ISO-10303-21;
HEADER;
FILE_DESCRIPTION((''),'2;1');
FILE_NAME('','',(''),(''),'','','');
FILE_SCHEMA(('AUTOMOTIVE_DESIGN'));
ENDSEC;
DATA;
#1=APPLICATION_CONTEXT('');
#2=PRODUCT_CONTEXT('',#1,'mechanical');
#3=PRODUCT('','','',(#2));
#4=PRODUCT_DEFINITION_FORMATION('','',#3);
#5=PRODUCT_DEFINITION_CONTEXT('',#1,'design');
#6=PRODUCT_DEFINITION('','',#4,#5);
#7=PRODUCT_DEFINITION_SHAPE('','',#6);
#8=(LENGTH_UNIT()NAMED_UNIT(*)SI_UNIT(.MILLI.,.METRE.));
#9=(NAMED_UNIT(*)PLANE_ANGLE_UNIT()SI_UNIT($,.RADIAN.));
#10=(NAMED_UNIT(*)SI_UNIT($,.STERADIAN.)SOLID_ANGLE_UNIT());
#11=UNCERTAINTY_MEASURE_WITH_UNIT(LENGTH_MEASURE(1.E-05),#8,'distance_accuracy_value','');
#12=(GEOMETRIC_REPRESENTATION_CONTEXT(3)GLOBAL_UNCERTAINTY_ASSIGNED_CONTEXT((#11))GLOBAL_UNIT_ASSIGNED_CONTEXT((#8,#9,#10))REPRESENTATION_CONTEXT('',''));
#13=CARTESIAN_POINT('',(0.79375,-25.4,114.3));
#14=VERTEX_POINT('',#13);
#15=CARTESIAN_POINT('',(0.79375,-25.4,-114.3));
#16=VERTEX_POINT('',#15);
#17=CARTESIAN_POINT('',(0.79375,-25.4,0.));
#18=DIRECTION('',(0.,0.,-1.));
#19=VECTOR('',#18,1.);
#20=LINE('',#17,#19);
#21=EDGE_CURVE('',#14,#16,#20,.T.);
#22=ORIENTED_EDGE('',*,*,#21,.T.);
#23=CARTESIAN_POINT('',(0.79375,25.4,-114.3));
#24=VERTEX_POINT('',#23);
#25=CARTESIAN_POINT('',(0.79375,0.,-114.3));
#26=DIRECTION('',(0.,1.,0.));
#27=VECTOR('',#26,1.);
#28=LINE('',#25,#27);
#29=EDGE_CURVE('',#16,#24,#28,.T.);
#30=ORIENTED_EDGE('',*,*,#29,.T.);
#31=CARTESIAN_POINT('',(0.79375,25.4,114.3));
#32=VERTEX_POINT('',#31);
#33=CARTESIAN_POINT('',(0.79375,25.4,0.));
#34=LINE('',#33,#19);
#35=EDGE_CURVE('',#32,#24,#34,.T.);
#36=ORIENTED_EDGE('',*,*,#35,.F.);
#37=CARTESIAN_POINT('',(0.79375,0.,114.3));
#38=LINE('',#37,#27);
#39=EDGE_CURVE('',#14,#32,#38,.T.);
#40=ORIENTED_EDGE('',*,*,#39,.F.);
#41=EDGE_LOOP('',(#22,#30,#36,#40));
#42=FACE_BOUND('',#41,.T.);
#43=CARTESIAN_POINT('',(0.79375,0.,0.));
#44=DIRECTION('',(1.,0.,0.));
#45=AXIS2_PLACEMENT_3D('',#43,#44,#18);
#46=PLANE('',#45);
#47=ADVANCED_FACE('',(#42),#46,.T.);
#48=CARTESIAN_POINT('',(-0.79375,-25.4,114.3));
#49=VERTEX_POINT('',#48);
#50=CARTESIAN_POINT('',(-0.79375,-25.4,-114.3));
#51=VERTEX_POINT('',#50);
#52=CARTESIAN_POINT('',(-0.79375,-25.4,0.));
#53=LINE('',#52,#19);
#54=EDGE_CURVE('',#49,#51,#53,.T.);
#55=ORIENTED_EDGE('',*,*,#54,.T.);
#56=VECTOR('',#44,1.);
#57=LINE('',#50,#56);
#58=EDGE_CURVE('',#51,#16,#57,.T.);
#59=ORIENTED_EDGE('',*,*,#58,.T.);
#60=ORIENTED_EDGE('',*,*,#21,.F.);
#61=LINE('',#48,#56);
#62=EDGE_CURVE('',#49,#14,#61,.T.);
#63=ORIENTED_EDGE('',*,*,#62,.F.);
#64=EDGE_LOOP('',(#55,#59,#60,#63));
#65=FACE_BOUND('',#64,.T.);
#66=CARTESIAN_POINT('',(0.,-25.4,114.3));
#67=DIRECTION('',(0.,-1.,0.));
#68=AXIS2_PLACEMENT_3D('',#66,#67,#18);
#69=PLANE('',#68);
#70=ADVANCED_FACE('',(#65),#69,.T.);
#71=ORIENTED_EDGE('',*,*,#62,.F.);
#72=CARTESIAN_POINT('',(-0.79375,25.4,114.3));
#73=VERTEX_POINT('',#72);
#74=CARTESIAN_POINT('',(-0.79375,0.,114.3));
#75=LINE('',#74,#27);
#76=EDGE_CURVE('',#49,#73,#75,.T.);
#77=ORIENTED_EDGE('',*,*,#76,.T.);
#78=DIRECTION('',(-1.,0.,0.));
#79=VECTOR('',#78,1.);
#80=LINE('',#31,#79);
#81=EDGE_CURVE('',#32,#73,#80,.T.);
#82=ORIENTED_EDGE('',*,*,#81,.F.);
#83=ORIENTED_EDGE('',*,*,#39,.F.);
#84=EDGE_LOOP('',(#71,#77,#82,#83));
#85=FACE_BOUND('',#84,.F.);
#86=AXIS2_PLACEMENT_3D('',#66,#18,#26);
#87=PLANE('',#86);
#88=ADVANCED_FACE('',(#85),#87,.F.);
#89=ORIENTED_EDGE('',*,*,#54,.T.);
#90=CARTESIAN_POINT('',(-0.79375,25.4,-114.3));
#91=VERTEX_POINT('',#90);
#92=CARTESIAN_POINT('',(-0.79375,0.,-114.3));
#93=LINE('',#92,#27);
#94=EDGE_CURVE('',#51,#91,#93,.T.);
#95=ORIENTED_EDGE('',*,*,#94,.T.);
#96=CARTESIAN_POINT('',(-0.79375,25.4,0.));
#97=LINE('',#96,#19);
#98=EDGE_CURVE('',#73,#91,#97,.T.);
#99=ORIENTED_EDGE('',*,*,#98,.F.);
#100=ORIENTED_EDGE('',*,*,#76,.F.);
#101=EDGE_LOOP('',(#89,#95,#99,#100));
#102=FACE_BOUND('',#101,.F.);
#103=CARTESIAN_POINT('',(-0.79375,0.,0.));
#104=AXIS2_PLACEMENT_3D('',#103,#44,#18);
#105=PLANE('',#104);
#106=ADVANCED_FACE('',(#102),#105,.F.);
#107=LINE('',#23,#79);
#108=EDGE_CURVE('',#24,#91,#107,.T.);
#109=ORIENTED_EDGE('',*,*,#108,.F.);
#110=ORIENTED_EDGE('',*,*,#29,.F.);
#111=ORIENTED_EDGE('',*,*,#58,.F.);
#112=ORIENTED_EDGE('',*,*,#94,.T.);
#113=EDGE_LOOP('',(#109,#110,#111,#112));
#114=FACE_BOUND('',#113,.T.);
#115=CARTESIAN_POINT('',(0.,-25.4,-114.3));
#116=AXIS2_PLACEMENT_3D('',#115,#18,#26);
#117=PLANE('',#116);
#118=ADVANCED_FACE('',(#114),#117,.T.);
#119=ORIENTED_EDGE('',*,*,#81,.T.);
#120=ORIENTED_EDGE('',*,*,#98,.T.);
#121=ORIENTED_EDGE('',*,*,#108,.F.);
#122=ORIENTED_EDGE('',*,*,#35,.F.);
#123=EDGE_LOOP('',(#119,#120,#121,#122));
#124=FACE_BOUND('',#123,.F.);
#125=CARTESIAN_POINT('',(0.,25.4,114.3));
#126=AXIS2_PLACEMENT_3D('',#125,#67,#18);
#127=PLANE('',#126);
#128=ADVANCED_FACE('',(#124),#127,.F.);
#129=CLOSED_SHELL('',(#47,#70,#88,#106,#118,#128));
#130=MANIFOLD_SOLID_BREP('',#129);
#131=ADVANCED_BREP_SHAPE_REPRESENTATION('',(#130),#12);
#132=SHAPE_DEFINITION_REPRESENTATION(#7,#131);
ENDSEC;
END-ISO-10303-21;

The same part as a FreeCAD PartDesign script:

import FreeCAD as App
import Part
import Sketcher

V = App.Vector
Q = App.Units.Quantity


def add_polygon(sketch, points):
    """Adds a closed chain of lines whose ends are joined by coincident constraints."""
    first, n = sketch.GeometryCount, len(points)
    for a, b in zip(points, points[1:] + points[:1]):
        sketch.addGeometry(Part.LineSegment(App.Vector(*a, 0), App.Vector(*b, 0)), False)
    for i in range(n):
        sketch.addConstraint(Sketcher.Constraint("Coincident", first + i, 2, first + (i + 1) % n, 1))

doc = App.newDocument("Part")
body = doc.addObject("PartDesign::Body", "Body")

# Sketch on YZ plane
sketch1 = body.newObject("Sketcher::SketchObject", "Sketch")
sketch1.AttachmentSupport = (doc.getObject("YZ_Plane"), [""])
sketch1.MapMode = "FlatFace"
add_polygon(sketch1, [(25, 114), (-25, 114), (-25, -114), (25, -114)])  # lines 0-3
sketch1.addConstraint([
    Sketcher.Constraint("Horizontal", 0),
    Sketcher.Constraint("Vertical", 1),
    Sketcher.Constraint("Horizontal", 2),
    Sketcher.Constraint("Vertical", 3),
    Sketcher.Constraint("Symmetric", 0, 2, 2, 2, -1, 1),
    Sketcher.Constraint("DistanceX", 0, 2, 0, 1, Q("2 in")),
    Sketcher.Constraint("DistanceY", 1, 2, 1, 1, Q("9 in")),
])
pad1 = body.newObject("PartDesign::Pad", "Pad")
pad1.Profile = sketch1
pad1.Length = Q("0.0625 in")
pad1.Midplane = True

doc.recompute()
